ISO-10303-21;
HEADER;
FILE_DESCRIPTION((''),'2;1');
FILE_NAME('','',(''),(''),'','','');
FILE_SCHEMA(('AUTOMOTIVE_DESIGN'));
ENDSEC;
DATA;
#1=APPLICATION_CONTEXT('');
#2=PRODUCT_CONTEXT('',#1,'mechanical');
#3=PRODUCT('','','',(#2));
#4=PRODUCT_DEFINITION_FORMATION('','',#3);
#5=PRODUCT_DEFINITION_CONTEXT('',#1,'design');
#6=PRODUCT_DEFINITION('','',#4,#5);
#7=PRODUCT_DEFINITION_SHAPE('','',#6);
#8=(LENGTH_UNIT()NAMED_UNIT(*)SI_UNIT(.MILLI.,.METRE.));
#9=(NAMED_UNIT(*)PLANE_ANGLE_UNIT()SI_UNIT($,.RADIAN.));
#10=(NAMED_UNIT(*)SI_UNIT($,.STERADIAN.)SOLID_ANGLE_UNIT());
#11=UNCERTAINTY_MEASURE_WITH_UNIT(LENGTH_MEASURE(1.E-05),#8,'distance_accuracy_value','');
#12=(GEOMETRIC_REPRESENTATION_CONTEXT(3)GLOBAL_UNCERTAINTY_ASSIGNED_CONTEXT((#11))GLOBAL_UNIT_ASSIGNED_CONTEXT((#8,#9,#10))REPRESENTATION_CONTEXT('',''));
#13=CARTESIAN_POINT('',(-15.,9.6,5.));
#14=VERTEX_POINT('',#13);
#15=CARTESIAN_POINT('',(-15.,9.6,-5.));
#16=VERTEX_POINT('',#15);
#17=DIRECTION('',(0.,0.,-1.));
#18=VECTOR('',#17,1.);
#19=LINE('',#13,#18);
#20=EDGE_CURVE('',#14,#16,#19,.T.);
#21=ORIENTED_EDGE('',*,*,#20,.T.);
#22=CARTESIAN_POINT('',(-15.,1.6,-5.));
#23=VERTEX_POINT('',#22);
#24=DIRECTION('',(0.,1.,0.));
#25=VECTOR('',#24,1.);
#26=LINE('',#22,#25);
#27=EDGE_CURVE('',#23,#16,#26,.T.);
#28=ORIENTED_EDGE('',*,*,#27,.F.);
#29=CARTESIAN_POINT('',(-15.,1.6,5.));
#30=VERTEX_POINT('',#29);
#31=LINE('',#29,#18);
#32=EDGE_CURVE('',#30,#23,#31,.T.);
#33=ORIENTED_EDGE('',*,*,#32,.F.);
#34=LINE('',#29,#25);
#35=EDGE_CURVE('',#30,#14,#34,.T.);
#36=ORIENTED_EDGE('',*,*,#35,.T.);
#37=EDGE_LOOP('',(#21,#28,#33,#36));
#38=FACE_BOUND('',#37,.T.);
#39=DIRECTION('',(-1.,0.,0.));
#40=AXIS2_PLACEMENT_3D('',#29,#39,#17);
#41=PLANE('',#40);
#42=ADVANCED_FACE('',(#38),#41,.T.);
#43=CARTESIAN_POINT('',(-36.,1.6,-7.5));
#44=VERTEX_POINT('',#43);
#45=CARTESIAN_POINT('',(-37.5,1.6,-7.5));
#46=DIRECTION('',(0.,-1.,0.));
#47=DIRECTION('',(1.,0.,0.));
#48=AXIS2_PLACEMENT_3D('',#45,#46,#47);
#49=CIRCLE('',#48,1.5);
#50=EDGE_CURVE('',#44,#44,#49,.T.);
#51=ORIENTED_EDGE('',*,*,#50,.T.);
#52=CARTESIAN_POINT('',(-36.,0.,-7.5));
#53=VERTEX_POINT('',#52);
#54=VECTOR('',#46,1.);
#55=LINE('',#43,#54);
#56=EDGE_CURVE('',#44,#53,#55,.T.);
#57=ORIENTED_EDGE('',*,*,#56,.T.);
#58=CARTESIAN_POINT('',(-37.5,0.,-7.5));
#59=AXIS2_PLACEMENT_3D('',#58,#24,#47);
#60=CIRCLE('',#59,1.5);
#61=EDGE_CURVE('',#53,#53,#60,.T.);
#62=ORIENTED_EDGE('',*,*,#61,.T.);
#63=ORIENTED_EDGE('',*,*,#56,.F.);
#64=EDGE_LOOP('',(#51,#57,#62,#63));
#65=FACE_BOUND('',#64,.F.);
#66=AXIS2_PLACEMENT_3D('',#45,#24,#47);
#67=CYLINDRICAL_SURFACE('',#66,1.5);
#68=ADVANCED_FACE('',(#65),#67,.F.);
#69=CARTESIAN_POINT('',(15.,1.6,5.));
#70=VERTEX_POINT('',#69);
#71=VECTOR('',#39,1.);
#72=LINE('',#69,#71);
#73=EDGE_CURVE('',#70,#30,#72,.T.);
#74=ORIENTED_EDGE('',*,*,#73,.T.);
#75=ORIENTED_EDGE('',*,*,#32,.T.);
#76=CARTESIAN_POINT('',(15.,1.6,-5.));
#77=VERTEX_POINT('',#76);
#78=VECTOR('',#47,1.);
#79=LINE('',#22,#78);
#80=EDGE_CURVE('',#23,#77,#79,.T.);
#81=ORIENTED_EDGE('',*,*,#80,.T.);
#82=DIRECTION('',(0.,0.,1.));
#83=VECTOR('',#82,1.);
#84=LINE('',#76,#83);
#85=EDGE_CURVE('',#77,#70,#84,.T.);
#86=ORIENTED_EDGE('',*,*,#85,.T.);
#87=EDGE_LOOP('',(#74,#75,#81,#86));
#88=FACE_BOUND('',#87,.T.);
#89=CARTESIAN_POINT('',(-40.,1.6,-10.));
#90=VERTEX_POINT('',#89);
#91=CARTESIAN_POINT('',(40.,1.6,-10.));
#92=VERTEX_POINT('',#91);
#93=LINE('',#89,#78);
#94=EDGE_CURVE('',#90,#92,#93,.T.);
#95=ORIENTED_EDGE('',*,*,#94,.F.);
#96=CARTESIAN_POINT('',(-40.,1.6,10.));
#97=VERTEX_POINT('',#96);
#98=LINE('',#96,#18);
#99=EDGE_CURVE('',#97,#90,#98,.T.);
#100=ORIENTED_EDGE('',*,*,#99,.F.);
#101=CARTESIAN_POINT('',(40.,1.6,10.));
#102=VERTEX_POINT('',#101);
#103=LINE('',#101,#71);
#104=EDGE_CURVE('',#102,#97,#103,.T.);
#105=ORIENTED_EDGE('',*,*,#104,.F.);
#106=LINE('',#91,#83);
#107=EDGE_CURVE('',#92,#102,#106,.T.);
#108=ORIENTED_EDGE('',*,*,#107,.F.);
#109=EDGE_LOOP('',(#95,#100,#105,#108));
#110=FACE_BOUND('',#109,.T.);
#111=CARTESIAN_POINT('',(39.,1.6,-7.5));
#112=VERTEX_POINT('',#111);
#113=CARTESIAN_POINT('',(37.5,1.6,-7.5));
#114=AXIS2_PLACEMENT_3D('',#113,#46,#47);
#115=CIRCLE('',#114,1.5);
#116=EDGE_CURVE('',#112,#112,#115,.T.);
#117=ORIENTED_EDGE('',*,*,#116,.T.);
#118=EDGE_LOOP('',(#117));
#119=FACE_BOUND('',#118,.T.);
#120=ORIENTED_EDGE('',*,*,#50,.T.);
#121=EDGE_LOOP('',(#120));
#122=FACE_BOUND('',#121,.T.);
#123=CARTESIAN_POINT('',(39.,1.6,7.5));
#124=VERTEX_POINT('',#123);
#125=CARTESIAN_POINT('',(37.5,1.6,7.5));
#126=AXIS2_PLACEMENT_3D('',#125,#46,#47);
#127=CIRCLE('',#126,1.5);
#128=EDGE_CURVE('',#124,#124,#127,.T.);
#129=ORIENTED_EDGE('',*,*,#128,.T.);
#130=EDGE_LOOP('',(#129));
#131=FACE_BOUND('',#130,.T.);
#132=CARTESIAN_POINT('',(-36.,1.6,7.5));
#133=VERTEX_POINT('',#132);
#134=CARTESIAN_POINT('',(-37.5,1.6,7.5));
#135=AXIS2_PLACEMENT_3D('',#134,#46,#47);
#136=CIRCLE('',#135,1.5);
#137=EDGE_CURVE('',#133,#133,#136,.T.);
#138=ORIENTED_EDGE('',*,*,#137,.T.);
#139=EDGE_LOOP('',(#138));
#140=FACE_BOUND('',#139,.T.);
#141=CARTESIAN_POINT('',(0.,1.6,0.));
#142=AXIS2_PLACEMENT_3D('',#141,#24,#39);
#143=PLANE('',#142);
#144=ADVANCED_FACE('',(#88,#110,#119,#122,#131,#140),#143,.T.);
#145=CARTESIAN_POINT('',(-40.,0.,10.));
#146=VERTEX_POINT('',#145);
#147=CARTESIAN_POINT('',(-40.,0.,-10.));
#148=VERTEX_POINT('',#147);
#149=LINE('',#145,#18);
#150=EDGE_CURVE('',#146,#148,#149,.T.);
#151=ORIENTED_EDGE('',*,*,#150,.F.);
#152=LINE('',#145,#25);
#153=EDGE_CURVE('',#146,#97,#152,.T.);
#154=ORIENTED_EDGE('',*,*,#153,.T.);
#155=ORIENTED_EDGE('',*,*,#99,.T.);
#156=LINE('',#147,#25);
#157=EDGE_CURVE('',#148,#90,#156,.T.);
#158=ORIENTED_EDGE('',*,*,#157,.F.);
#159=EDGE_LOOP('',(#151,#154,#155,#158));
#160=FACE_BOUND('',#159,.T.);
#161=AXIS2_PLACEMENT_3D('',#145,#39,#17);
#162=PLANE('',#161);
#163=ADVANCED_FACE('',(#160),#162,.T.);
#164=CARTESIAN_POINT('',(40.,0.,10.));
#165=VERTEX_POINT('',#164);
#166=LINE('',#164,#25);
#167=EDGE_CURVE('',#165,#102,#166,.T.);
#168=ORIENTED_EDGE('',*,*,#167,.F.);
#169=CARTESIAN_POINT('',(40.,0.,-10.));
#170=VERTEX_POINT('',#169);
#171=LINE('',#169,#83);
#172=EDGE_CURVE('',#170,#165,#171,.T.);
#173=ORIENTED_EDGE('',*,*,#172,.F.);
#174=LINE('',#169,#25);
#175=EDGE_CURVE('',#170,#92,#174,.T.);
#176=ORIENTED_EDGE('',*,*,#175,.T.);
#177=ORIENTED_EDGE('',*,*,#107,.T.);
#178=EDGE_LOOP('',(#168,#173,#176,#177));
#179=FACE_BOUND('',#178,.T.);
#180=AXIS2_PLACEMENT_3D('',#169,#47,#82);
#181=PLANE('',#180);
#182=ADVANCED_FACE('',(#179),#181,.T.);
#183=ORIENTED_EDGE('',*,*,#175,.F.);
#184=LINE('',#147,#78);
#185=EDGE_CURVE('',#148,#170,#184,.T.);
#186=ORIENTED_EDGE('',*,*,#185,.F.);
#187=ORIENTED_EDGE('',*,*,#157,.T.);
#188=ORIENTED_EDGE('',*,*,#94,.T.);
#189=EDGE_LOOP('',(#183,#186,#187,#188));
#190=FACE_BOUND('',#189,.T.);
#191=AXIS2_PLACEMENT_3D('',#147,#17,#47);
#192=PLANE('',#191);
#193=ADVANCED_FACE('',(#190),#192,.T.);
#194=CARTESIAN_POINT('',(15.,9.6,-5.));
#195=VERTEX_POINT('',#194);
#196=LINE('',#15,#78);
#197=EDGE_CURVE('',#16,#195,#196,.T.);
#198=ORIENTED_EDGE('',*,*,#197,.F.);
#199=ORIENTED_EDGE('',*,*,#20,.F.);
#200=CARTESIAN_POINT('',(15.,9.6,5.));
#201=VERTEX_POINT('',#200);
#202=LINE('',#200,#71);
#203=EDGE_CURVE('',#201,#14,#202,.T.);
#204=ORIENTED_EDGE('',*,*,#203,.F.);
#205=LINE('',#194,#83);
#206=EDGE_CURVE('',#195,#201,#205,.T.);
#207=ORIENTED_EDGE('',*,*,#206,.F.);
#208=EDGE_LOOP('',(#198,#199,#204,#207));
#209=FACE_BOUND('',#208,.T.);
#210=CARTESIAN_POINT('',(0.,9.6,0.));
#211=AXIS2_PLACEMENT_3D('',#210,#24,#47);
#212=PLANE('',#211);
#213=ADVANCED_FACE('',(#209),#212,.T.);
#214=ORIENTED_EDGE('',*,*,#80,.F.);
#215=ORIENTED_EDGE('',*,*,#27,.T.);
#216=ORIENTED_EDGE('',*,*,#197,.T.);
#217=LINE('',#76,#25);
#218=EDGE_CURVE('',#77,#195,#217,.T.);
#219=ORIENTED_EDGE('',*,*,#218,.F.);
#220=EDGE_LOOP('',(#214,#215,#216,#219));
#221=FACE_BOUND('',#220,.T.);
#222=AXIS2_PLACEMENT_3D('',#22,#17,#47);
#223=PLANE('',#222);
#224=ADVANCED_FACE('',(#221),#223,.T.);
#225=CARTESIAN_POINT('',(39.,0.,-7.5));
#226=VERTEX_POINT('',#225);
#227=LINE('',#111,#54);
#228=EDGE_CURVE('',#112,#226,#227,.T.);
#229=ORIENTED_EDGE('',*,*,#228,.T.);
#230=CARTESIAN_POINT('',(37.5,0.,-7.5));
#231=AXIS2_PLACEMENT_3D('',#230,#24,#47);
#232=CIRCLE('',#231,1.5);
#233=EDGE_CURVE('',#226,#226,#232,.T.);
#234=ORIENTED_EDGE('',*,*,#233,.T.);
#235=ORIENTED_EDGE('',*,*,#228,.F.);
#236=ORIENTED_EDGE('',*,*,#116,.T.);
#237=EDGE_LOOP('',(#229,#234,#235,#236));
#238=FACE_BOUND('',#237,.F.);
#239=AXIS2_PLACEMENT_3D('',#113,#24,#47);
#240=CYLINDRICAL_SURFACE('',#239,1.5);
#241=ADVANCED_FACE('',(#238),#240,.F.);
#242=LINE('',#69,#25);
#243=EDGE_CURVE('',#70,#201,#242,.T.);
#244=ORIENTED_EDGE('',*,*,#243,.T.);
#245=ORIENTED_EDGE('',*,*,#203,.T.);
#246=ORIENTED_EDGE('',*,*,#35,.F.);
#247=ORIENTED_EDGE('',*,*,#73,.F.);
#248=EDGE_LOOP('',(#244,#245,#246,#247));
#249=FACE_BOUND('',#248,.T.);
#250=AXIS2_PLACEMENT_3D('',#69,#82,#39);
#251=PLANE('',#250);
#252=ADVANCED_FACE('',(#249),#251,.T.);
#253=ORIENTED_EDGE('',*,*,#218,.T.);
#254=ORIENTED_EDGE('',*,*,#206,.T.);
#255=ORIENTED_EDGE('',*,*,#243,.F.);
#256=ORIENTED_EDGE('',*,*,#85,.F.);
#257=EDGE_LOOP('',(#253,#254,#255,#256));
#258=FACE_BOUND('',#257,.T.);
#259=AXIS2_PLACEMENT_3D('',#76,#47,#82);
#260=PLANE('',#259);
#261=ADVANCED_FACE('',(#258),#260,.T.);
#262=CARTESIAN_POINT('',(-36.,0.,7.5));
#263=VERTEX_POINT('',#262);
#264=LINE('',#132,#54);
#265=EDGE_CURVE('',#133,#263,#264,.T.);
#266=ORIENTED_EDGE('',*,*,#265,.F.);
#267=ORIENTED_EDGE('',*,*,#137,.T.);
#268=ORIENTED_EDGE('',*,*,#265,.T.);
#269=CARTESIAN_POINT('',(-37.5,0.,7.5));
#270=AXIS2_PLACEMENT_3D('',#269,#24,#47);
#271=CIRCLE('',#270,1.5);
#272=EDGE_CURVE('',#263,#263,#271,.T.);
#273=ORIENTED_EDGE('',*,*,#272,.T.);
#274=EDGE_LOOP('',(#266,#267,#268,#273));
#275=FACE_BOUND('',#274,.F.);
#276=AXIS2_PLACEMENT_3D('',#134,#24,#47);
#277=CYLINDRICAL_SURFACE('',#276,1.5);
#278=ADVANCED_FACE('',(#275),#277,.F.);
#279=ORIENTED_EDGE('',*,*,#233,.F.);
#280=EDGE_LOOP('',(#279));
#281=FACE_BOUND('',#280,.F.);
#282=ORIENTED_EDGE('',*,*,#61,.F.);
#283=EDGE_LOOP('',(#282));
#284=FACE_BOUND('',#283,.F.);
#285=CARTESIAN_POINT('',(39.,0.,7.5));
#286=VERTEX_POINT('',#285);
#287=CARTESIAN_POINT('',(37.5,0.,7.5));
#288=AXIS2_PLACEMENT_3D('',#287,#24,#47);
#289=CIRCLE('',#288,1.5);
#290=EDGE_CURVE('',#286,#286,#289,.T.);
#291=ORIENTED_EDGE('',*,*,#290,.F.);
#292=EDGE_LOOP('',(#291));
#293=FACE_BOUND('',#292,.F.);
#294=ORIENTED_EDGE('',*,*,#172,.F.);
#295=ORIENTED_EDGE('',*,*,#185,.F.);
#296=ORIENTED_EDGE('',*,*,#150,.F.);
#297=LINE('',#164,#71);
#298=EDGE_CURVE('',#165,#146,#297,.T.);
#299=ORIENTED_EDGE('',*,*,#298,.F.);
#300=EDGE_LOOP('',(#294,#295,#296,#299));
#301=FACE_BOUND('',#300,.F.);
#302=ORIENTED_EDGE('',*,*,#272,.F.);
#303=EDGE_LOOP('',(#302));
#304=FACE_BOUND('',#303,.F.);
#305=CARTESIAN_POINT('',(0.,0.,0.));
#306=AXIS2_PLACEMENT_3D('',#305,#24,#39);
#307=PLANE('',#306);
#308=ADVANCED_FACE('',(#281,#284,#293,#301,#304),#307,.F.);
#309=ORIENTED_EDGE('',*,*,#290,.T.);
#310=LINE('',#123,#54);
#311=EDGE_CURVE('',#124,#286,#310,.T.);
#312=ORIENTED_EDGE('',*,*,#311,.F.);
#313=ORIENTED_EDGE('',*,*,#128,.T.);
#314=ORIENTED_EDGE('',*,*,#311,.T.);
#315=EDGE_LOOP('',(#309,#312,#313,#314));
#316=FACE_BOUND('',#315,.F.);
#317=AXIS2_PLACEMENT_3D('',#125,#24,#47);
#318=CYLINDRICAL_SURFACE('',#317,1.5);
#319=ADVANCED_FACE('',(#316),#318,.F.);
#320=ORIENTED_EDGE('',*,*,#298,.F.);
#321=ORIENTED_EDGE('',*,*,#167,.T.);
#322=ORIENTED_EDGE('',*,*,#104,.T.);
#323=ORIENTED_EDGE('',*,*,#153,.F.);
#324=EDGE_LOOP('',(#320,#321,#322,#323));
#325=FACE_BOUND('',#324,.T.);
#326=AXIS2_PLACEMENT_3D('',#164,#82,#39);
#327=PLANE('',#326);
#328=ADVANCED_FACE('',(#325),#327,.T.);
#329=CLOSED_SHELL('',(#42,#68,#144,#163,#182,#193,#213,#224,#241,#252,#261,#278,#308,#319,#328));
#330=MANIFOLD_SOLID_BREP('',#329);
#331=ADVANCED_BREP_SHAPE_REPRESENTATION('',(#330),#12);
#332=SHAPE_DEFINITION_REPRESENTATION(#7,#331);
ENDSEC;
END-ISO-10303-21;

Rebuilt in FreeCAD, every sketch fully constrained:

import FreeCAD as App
import Part
import Sketcher
from FreeCAD import Vector


def add_polygon(sketch, points):
    """Adds a closed chain of lines whose ends are joined by coincident constraints."""
    first, n = sketch.GeometryCount, len(points)
    for a, b in zip(points, points[1:] + points[:1]):
        sketch.addGeometry(Part.LineSegment(App.Vector(*a, 0), App.Vector(*b, 0)), False)
    for i in range(n):
        sketch.addConstraint(Sketcher.Constraint("Coincident", first + i, 2, first + (i + 1) % n, 1))

doc = App.newDocument("Part")
body = doc.addObject("PartDesign::Body", "Body")

sketch1 = body.newObject("Sketcher::SketchObject", "Sketch")
sketch1.AttachmentSupport = (doc.getObject("XZ_Plane"), [""])
sketch1.MapMode = "FlatFace"
add_polygon(sketch1, [(-40, 10), (40, 10), (40, -10), (-40, -10)])
sketch1.addConstraint([
    Sketcher.Constraint("Horizontal", 0),
    Sketcher.Constraint("Vertical", 1),
    Sketcher.Constraint("Horizontal", 2),
    Sketcher.Constraint("Vertical", 3),
    Sketcher.Constraint("Symmetric", 0, 2, 2, 2, -1, 1),
    Sketcher.Constraint("DistanceX", 0, 1, 0, 2, 80.0),
    Sketcher.Constraint("DistanceY", 1, 2, 1, 1, 20.0),
])
pad1 = body.newObject("PartDesign::Pad", "Pad")
pad1.Profile = sketch1
pad1.Length = 1.6
pad1.Reversed = True

sketch2 = body.newObject("Sketcher::SketchObject", "Sketch001")
sketch2.AttachmentSupport = (doc.getObject("XZ_Plane"), [""])
sketch2.MapMode = "FlatFace"
sketch2.AttachmentOffset = App.Placement(Vector(0, 0, -1.6), App.Rotation())
sketch2.addGeometry([
    Part.Circle(Vector(-37.5, -7.5, 0), Vector(0, 0, 1), 1.5),
    Part.Circle(Vector(-37.5, 7.5, 0), Vector(0, 0, 1), 1.5),
    Part.Circle(Vector(37.5, 7.5, 0), Vector(0, 0, 1), 1.5),
    Part.Circle(Vector(37.5, -7.5, 0), Vector(0, 0, 1), 1.5),
], False)
sketch2.addConstraint([
    Sketcher.Constraint("Equal", 0, 1),
    Sketcher.Constraint("Equal", 1, 2),
    Sketcher.Constraint("Equal", 2, 3),
    Sketcher.Constraint("Symmetric", 0, 3, 2, 3, -1, 1),
    Sketcher.Constraint("Symmetric", 1, 3, 3, 3, -1, 1),
    Sketcher.Constraint("Symmetric", 1, 3, 2, 3, -2),
    Sketcher.Constraint("Diameter", 0, 3.0),
    Sketcher.Constraint("DistanceY", 0, 3, 1, 3, 15.0),
    Sketcher.Constraint("DistanceX", 1, 3, 2, 3, 75.0),
])
pocket1 = body.newObject("PartDesign::Pocket", "Pocket")
pocket1.Profile = sketch2
pocket1.Length = 1.6
pocket1.Reversed = True

sketch3 = body.newObject("Sketcher::SketchObject", "Sketch002")
sketch3.AttachmentSupport = (doc.getObject("XZ_Plane"), [""])
sketch3.MapMode = "FlatFace"
sketch3.AttachmentOffset = App.Placement(Vector(0, 0, -1.6), App.Rotation())
add_polygon(sketch3, [(-15, 5), (15, 5), (15, -5), (-15, -5)])
sketch3.addConstraint([
    Sketcher.Constraint("Horizontal", 0),
    Sketcher.Constraint("Vertical", 1),
    Sketcher.Constraint("Horizontal", 2),
    Sketcher.Constraint("Vertical", 3),
    Sketcher.Constraint("Symmetric", 0, 2, 2, 2, -1, 1),
    Sketcher.Constraint("DistanceX", 0, 1, 0, 2, 30.0),
    Sketcher.Constraint("DistanceY", 1, 2, 1, 1, 10.0),
])
pad2 = body.newObject("PartDesign::Pad", "Pad001")
pad2.Profile = sketch3
pad2.Length = 8
pad2.Reversed = True

doc.recompute()
